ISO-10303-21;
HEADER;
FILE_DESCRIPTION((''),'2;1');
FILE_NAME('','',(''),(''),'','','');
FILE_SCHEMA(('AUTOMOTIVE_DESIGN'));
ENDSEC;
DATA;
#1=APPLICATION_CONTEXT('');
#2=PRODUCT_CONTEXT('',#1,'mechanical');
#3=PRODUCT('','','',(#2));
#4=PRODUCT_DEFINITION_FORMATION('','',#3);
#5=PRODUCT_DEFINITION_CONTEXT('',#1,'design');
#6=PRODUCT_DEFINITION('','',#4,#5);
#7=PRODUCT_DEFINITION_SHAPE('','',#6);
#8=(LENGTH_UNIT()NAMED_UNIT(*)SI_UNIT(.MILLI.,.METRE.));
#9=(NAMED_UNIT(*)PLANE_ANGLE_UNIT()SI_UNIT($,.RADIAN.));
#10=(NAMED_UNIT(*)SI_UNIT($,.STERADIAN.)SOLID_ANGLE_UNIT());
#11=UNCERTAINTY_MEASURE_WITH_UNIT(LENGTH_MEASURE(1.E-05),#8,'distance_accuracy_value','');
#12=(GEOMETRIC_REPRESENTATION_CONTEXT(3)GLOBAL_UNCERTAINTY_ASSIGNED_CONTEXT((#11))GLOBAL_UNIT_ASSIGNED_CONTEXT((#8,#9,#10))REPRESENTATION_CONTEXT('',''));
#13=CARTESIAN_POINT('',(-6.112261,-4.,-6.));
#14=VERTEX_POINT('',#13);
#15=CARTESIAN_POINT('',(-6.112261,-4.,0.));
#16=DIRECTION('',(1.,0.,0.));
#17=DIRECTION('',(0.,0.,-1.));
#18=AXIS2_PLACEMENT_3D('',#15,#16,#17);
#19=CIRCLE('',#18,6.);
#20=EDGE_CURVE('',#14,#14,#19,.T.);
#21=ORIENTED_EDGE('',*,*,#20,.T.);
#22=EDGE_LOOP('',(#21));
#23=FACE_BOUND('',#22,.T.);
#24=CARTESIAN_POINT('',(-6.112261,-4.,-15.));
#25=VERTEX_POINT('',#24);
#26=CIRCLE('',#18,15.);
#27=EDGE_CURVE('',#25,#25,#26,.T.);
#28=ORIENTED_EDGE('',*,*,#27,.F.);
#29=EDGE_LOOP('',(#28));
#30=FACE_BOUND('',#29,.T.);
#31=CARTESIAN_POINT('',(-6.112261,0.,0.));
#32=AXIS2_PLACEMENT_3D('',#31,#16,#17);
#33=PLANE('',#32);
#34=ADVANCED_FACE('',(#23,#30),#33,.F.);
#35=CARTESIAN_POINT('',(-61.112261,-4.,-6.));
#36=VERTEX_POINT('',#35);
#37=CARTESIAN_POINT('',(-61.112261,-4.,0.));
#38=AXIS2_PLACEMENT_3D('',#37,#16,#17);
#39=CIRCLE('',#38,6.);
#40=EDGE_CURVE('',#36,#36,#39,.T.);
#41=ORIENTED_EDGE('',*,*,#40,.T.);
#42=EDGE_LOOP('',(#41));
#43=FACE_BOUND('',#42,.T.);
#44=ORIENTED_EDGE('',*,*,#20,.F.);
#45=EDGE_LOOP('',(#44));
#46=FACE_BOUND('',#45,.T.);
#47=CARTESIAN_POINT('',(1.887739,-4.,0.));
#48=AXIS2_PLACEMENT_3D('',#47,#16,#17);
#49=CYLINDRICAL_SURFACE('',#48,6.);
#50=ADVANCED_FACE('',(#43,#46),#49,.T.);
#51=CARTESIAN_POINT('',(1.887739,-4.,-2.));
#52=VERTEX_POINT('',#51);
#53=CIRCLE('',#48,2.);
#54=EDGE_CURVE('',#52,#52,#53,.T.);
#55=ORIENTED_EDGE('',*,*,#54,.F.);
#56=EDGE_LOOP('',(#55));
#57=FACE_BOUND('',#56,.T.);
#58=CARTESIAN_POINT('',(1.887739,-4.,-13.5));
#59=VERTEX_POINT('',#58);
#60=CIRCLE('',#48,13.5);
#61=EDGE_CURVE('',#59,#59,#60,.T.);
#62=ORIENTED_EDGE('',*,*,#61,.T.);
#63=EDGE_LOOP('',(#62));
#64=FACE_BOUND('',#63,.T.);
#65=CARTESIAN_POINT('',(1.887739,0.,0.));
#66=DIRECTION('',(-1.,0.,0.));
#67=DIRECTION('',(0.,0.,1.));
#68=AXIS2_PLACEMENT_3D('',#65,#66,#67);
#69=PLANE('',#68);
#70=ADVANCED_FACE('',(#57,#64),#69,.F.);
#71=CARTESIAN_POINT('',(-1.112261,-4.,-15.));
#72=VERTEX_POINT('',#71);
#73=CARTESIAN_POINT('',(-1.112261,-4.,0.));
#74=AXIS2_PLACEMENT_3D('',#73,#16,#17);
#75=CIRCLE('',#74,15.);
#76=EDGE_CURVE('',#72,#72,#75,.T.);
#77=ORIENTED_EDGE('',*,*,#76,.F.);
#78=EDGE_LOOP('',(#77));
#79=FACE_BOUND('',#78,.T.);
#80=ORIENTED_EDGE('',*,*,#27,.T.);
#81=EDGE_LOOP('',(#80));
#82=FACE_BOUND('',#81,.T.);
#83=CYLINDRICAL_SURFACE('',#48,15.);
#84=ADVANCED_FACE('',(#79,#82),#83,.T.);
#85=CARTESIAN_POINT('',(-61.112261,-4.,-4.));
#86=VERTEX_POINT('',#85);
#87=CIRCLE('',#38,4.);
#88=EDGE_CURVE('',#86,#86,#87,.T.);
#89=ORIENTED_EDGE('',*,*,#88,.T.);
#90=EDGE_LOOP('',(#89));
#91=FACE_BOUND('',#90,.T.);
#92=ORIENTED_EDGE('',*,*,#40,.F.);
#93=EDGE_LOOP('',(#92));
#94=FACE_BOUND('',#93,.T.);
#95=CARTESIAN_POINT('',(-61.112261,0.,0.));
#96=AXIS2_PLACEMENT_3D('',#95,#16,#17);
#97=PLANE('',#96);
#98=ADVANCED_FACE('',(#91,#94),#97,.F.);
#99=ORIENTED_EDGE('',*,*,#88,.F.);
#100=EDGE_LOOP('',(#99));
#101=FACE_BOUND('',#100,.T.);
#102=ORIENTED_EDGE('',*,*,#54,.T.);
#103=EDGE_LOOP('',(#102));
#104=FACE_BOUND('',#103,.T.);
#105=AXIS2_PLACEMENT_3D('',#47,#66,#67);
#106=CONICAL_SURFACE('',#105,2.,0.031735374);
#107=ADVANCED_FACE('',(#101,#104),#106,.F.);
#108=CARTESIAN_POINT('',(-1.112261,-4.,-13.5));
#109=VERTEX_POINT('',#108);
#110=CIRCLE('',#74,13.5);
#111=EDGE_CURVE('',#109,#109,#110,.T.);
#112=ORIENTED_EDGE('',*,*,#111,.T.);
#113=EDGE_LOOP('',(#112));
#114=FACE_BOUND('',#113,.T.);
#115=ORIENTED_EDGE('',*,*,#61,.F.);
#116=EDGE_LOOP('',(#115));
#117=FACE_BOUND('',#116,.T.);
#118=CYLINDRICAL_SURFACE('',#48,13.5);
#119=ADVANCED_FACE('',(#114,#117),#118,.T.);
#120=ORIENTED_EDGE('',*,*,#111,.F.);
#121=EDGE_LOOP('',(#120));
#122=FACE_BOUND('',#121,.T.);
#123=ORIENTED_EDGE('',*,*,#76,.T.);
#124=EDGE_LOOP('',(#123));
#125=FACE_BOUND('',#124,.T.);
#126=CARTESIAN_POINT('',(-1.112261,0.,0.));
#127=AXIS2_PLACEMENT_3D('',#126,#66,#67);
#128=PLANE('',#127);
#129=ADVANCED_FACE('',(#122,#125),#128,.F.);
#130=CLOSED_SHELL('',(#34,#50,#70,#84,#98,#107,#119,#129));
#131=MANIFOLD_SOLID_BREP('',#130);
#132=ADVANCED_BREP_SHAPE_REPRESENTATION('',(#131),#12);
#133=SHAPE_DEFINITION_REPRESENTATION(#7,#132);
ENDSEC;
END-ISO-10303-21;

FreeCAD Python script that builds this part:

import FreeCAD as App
import Part
import Sketcher
from FreeCAD import Vector

doc = App.newDocument("Part")
params = doc.addObject("Spreadsheet::Sheet", "Params")
for row, (alias, value) in enumerate([
    ("sketch1_width", "3 mm"),
    ("sketch1_width2", "5 mm"),
    ("sketch1_width3", "55 mm"),
    ("sketch1_height", "9 mm"),
    ("sketch1_height2", "2 mm"),
    ("revolution_angle", "360 deg"),
], start=1):
    params.set(f"A{row}", alias)
    params.set(f"B{row}", "=" + value)
    params.setAlias(f"B{row}", alias)

body = doc.addObject("PartDesign::Body", "Body")

sketch1 = body.newObject("Sketcher::SketchObject", "Sketch")
sketch1.AttachmentSupport = (doc.getObject("XY_Plane"), [""])
sketch1.MapMode = "FlatFace"
sketch1.addGeometry(Part.LineSegment(Vector(-61.1, 0, 0), Vector(1.9, -2, 0)), False)
sketch1.addGeometry(Part.LineSegment(Vector(1.9, -2, 0), Vector(1.9, 9.5, 0)), False)
sketch1.addGeometry(Part.LineSegment(Vector(1.9, 9.5, 0), Vector(-1.1, 9.5, 0)), False)
sketch1.addGeometry(Part.LineSegment(Vector(-1.1, 9.5, 0), Vector(-1.1, 11, 0)), False)
sketch1.addGeometry(Part.LineSegment(Vector(-1.1, 11, 0), Vector(-6.1, 11, 0)), False)
sketch1.addGeometry(Part.LineSegment(Vector(-6.1, 11, 0), Vector(-6.1, 2, 0)), False)
sketch1.addGeometry(Part.LineSegment(Vector(-6.1, 2, 0), Vector(-61.1, 2, 0)), False)
sketch1.addGeometry(Part.LineSegment(Vector(-61.1, 2, 0), Vector(-61.1, 0, 0)), False)
sketch1.addGeometry(Part.LineSegment(Vector(1.9, -4, 0), Vector(-61.1, -4, 0)), True)
sketch1.addConstraint(Sketcher.Constraint("Coincident", 0, 2, 1, 1))
sketch1.addConstraint(Sketcher.Constraint("Coincident", 1, 2, 2, 1))
sketch1.addConstraint(Sketcher.Constraint("Coincident", 2, 2, 3, 1))
sketch1.addConstraint(Sketcher.Constraint("Coincident", 3, 2, 4, 1))
sketch1.addConstraint(Sketcher.Constraint("Coincident", 4, 2, 5, 1))
sketch1.addConstraint(Sketcher.Constraint("Coincident", 5, 2, 6, 1))
sketch1.addConstraint(Sketcher.Constraint("Coincident", 6, 2, 7, 1))
sketch1.addConstraint(Sketcher.Constraint("Coincident", 7, 2, 0, 1))
sketch1.addConstraint(Sketcher.Constraint("Vertical", 1))
sketch1.addConstraint(Sketcher.Constraint("Horizontal", 2))
sketch1.addConstraint(Sketcher.Constraint("Vertical", 3))
sketch1.addConstraint(Sketcher.Constraint("Horizontal", 4))
sketch1.addConstraint(Sketcher.Constraint("Vertical", 5))
sketch1.addConstraint(Sketcher.Constraint("Horizontal", 6))
sketch1.addConstraint(Sketcher.Constraint("Vertical", 7))
sketch1.addConstraint(Sketcher.Constraint("Horizontal", 8))
sketch1.addConstraint(Sketcher.Constraint("PointOnObject", 7, 2, -1))
sketch1.addConstraint(Sketcher.Constraint("Vertical", 1, 2, 8, 1))
sketch1.addConstraint(Sketcher.Constraint("Vertical", 7, 2, 8, 2))
sketch1.addConstraint(Sketcher.Constraint("DistanceX", 2, 2, 2, 1, 3.0))
sketch1.addConstraint(Sketcher.Constraint("DistanceX", 4, 2, 4, 1, 5.0))
sketch1.addConstraint(Sketcher.Constraint("DistanceX", 6, 2, 6, 1, 55.0))
sketch1.addConstraint(Sketcher.Constraint("DistanceY", 5, 2, 5, 1, 9.0))
sketch1.addConstraint(Sketcher.Constraint("DistanceY", 7, 2, 7, 1, 2.0))
sketch1.addConstraint(Sketcher.Constraint("DistanceY", 1, 1, 1, 2, 11.5))
sketch1.addConstraint(Sketcher.Constraint("DistanceY", 3, 1, 3, 2, 1.5))
sketch1.addConstraint(Sketcher.Constraint("DistanceY", 8, 1, -1, 1, 4.0))
sketch1.addConstraint(Sketcher.Constraint("DistanceX", -1, 1, 0, 2, 1.887739))
sketch1.setExpression("Constraints[19]", "Params.sketch1_width")
sketch1.setExpression("Constraints[20]", "Params.sketch1_width2")
sketch1.setExpression("Constraints[21]", "Params.sketch1_width3")
sketch1.setExpression("Constraints[22]", "Params.sketch1_height")
sketch1.setExpression("Constraints[23]", "Params.sketch1_height2")
revolution = body.newObject("PartDesign::Revolution", "Revolution")
revolution.Profile = sketch1
revolution.ReferenceAxis = (sketch1, ["Axis0"])
revolution.setExpression("Angle", "Params.revolution_angle")

doc.recompute()
